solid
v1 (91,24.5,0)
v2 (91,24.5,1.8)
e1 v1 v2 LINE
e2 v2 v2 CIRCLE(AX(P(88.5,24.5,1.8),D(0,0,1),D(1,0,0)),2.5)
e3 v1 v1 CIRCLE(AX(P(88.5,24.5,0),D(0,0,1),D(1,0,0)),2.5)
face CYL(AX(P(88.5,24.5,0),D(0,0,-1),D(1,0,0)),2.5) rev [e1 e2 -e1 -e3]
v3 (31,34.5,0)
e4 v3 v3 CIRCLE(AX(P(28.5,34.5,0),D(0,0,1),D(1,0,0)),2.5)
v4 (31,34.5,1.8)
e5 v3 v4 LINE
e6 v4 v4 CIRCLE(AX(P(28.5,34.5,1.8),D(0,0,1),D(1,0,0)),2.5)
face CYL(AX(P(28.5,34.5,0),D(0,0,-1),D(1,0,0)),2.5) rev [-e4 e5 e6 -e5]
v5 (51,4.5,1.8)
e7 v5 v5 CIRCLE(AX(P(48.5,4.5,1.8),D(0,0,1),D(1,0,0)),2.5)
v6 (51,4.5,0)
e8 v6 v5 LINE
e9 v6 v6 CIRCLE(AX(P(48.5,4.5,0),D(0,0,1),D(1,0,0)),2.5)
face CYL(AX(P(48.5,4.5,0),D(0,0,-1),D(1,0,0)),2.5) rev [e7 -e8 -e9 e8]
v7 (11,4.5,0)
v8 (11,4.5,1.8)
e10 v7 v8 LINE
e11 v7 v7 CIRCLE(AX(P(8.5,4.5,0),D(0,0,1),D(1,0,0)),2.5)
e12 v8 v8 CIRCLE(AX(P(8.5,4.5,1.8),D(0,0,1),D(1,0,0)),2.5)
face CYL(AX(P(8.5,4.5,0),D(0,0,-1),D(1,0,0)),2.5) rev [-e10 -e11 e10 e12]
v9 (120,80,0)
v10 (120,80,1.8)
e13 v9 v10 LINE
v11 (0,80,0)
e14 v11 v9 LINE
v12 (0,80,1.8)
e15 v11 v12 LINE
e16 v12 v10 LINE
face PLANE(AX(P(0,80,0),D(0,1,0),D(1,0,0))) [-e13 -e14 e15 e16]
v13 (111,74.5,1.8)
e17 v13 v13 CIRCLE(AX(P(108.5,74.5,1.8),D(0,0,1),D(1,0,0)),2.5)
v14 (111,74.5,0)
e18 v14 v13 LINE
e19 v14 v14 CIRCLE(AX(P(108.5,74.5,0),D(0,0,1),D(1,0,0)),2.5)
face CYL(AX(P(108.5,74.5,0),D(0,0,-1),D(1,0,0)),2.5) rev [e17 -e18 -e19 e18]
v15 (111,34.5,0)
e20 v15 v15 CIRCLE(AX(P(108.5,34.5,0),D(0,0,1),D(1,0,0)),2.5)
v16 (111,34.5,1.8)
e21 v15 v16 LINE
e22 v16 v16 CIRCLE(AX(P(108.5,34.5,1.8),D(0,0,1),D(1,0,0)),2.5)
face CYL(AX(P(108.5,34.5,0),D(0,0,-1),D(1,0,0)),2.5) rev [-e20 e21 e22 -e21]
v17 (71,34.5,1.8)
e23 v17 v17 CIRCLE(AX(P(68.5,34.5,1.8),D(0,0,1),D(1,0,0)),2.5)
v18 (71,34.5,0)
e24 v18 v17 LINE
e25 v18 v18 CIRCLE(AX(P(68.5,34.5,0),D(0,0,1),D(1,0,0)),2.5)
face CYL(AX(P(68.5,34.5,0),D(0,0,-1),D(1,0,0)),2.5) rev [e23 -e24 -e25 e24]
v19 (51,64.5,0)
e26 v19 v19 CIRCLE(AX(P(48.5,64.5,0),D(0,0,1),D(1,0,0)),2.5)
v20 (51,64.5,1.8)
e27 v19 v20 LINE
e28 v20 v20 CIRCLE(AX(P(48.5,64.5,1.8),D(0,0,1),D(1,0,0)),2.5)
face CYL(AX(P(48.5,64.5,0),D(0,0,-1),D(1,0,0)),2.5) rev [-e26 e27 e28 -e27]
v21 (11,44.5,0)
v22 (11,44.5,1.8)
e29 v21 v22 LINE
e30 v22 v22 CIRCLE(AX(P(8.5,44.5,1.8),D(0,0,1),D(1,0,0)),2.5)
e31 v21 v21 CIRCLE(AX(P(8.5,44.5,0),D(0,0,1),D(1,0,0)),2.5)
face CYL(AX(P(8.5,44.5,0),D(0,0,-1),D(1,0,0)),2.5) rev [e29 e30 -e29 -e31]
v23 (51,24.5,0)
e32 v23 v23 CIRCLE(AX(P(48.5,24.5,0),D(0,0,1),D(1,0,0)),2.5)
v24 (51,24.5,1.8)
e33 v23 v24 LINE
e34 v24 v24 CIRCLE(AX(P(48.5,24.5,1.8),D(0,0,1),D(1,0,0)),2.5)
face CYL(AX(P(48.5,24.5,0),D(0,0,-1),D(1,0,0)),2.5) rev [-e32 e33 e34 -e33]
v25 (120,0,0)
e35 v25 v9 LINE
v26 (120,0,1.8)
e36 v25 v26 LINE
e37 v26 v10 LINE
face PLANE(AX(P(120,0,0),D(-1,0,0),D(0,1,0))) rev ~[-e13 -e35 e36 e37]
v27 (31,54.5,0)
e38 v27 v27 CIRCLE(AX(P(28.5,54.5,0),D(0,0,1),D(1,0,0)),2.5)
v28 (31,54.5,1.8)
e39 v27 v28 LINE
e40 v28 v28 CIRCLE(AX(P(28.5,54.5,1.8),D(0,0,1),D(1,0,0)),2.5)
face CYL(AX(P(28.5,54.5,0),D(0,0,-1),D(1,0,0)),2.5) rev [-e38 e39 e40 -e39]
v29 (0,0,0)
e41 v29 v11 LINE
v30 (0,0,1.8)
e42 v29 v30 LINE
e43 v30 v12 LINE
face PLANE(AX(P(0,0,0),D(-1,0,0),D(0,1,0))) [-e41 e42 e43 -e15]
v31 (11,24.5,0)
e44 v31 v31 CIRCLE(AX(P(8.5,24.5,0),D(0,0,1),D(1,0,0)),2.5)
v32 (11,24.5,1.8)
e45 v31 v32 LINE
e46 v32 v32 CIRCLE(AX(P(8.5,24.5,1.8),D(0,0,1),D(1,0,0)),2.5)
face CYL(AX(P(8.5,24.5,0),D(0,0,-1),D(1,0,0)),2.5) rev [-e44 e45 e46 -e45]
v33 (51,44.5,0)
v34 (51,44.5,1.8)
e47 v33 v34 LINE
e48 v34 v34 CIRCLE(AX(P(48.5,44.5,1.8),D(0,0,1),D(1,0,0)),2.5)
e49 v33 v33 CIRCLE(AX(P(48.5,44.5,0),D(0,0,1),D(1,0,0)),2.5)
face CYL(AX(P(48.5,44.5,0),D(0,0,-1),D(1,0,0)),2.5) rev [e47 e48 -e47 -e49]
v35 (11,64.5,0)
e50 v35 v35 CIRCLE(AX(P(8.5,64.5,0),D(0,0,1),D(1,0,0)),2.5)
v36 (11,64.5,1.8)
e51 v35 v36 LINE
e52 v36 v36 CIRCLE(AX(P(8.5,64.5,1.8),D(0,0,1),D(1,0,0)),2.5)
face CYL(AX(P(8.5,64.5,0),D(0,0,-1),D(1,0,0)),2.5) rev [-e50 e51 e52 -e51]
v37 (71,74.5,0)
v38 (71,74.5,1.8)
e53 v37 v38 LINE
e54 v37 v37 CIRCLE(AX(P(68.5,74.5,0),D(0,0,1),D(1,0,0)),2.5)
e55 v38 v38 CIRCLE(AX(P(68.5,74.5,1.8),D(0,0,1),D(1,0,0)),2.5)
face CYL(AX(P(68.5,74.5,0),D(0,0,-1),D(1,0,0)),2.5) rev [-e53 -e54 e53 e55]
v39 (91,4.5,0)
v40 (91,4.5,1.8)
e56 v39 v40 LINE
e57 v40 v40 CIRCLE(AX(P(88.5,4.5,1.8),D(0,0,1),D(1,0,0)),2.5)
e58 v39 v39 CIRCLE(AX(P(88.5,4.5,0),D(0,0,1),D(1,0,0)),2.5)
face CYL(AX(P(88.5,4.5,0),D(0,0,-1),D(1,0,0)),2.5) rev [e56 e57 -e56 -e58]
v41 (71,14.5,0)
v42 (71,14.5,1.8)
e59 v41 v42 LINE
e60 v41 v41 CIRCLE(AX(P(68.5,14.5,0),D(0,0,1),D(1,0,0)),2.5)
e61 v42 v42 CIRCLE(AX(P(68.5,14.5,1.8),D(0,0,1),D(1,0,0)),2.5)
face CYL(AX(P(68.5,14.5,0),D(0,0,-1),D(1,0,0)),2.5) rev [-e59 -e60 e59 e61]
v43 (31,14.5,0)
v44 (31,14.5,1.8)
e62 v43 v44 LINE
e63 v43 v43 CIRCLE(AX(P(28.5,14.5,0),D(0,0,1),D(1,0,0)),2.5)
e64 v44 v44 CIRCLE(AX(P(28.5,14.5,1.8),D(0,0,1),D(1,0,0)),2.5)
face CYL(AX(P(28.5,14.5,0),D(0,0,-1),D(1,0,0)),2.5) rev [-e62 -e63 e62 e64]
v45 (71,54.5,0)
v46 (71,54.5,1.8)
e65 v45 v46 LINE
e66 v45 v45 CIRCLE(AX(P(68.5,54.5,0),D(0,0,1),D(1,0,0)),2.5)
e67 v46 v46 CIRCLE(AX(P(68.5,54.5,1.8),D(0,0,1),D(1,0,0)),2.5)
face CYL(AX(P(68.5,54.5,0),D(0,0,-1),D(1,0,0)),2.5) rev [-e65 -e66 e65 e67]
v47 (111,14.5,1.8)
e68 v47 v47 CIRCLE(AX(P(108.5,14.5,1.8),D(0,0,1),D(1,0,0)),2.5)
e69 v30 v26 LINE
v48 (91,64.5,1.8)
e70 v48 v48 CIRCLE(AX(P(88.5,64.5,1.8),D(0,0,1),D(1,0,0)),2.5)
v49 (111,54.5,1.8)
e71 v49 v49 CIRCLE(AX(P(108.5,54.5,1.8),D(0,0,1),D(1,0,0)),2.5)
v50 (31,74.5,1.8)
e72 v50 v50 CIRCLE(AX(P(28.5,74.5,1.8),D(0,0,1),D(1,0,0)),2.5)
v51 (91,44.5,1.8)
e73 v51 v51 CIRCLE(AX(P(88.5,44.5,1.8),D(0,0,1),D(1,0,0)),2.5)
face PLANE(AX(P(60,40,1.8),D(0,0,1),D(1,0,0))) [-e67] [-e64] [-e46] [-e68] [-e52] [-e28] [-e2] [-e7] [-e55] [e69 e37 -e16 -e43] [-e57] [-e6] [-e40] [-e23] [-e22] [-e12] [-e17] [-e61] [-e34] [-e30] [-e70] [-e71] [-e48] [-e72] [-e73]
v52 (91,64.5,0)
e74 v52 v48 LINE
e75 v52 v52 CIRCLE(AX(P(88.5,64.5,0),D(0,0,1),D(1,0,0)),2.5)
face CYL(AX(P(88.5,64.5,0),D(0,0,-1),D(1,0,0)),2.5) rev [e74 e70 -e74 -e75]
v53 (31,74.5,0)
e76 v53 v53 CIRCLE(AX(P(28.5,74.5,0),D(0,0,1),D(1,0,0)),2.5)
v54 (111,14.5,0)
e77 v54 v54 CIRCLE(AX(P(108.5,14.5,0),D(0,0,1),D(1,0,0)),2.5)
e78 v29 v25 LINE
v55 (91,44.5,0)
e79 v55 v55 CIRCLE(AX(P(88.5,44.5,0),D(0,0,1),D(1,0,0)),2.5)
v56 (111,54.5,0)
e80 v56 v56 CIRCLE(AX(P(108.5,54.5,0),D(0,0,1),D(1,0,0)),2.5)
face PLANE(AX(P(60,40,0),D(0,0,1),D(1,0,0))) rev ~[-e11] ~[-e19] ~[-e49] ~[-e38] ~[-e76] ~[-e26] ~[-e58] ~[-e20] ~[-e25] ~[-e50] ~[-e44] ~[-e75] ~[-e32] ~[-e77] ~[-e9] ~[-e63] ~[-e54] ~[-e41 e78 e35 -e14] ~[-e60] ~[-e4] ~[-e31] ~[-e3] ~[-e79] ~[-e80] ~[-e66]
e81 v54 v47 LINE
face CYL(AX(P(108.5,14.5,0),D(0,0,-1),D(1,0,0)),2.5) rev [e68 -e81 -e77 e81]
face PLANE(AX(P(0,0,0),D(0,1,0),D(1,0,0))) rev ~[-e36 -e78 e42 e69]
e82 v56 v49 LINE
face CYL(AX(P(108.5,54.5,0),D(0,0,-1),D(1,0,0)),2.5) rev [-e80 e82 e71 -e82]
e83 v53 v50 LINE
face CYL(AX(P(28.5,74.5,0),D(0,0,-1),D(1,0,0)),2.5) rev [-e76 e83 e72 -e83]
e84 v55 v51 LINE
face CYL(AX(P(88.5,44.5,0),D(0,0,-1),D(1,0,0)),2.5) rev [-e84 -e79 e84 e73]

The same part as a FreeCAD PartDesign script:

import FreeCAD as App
import Part
import Sketcher
Q = App.Units.Quantity


def add_polygon(sketch, points):
    """Adds a closed chain of lines whose ends are joined by coincident constraints."""
    first, n = sketch.GeometryCount, len(points)
    for a, b in zip(points, points[1:] + points[:1]):
        sketch.addGeometry(Part.LineSegment(App.Vector(*a, 0), App.Vector(*b, 0)), False)
    for i in range(n):
        sketch.addConstraint(Sketcher.Constraint("Coincident", first + i, 2, first + (i + 1) % n, 1))

doc = App.newDocument("Part")
body = doc.addObject("PartDesign::Body", "Body")

# Sketch on XY plane
sketch1 = body.newObject("Sketcher::SketchObject", "Sketch")
sketch1.AttachmentSupport = (doc.getObject("XY_Plane"), [""])
sketch1.MapMode = "FlatFace"
add_polygon(sketch1, [(0, 80), (0, 0), (120, 0), (120, 80)])  # lines 0-3
sketch1.addGeometry(Part.Circle(App.Vector(8.5, 4.5, 0), App.Vector(0, 0, 1), 2.5), False)  # 4
sketch1.addGeometry(Part.Circle(App.Vector(28.5, 14.5, 0), App.Vector(0, 0, 1), 2.5), False)  # 5
sketch1.addGeometry(Part.Circle(App.Vector(48.5, 4.5, 0), App.Vector(0, 0, 1), 2.5), False)  # 6
sketch1.addGeometry(Part.Circle(App.Vector(8.5, 24.5, 0), App.Vector(0, 0, 1), 2.5), False)  # 7
sketch1.addGeometry(Part.Circle(App.Vector(28.5, 34.5, 0), App.Vector(0, 0, 1), 2.5), False)  # 8
sketch1.addGeometry(Part.Circle(App.Vector(48.5, 24.5, 0), App.Vector(0, 0, 1), 2.5), False)  # 9
sketch1.addGeometry(Part.Circle(App.Vector(68.5, 14.5, 0), App.Vector(0, 0, 1), 2.5), False)  # 10
sketch1.addGeometry(Part.Circle(App.Vector(88.5, 4.5, 0), App.Vector(0, 0, 1), 2.5), False)  # 11
sketch1.addGeometry(Part.Circle(App.Vector(108.5, 14.5, 0), App.Vector(0, 0, 1), 2.5), False)  # 12
sketch1.addGeometry(Part.Circle(App.Vector(68.5, 34.5, 0), App.Vector(0, 0, 1), 2.5), False)  # 13
sketch1.addGeometry(Part.Circle(App.Vector(88.5, 24.5, 0), App.Vector(0, 0, 1), 2.5), False)  # 14
sketch1.addGeometry(Part.Circle(App.Vector(108.5, 34.5, 0), App.Vector(0, 0, 1), 2.5), False)  # 15
sketch1.addGeometry(Part.Circle(App.Vector(8.5, 44.5, 0), App.Vector(0, 0, 1), 2.5), False)  # 16
sketch1.addGeometry(Part.Circle(App.Vector(28.5, 54.5, 0), App.Vector(0, 0, 1), 2.5), False)  # 17
sketch1.addGeometry(Part.Circle(App.Vector(48.5, 44.5, 0), App.Vector(0, 0, 1), 2.5), False)  # 18
sketch1.addGeometry(Part.Circle(App.Vector(8.5, 64.5, 0), App.Vector(0, 0, 1), 2.5), False)  # 19
sketch1.addGeometry(Part.Circle(App.Vector(28.5, 74.5, 0), App.Vector(0, 0, 1), 2.5), False)  # 20
sketch1.addGeometry(Part.Circle(App.Vector(48.5, 64.5, 0), App.Vector(0, 0, 1), 2.5), False)  # 21
sketch1.addGeometry(Part.Circle(App.Vector(68.5, 54.5, 0), App.Vector(0, 0, 1), 2.5), False)  # 22
sketch1.addGeometry(Part.Circle(App.Vector(88.5, 44.5, 0), App.Vector(0, 0, 1), 2.5), False)  # 23
sketch1.addGeometry(Part.Circle(App.Vector(108.5, 54.5, 0), App.Vector(0, 0, 1), 2.5), False)  # 24
sketch1.addGeometry(Part.Circle(App.Vector(68.5, 74.5, 0), App.Vector(0, 0, 1), 2.5), False)  # 25
sketch1.addGeometry(Part.Circle(App.Vector(88.5, 64.5, 0), App.Vector(0, 0, 1), 2.5), False)  # 26
sketch1.addGeometry(Part.Circle(App.Vector(108.5, 74.5, 0), App.Vector(0, 0, 1), 2.5), False)  # 27
sketch1.addConstraint(Sketcher.Constraint("Vertical", 0))
sketch1.addConstraint(Sketcher.Constraint("Horizontal", 1))
sketch1.addConstraint(Sketcher.Constraint("Vertical", 2))
sketch1.addConstraint(Sketcher.Constraint("Horizontal", 3))
sketch1.addConstraint(Sketcher.Constraint("Coincident", 0, 2, -1, 1))
sketch1.addConstraint(Sketcher.Constraint("Equal", 4, 5))
sketch1.addConstraint(Sketcher.Constraint("Equal", 5, 6))
sketch1.addConstraint(Sketcher.Constraint("Equal", 6, 7))
sketch1.addConstraint(Sketcher.Constraint("Equal", 7, 8))
sketch1.addConstraint(Sketcher.Constraint("Equal", 8, 9))
sketch1.addConstraint(Sketcher.Constraint("Equal", 9, 10))
sketch1.addConstraint(Sketcher.Constraint("Equal", 10, 11))
sketch1.addConstraint(Sketcher.Constraint("Equal", 11, 12))
sketch1.addConstraint(Sketcher.Constraint("Equal", 12, 13))
sketch1.addConstraint(Sketcher.Constraint("Equal", 13, 14))
sketch1.addConstraint(Sketcher.Constraint("Equal", 14, 15))
sketch1.addConstraint(Sketcher.Constraint("Equal", 15, 16))
sketch1.addConstraint(Sketcher.Constraint("Equal", 16, 17))
sketch1.addConstraint(Sketcher.Constraint("Equal", 17, 18))
sketch1.addConstraint(Sketcher.Constraint("Equal", 18, 19))
sketch1.addConstraint(Sketcher.Constraint("Equal", 19, 20))
sketch1.addConstraint(Sketcher.Constraint("Equal", 20, 21))
sketch1.addConstraint(Sketcher.Constraint("Equal", 21, 22))
sketch1.addConstraint(Sketcher.Constraint("Equal", 22, 23))
sketch1.addConstraint(Sketcher.Constraint("Equal", 23, 24))
sketch1.addConstraint(Sketcher.Constraint("Equal", 24, 25))
sketch1.addConstraint(Sketcher.Constraint("Equal", 25, 26))
sketch1.addConstraint(Sketcher.Constraint("Equal", 26, 27))
sketch1.addConstraint(Sketcher.Constraint("Horizontal", 4, 3, 6, 3))
sketch1.addConstraint(Sketcher.Constraint("Horizontal", 7, 3, 9, 3))
sketch1.addConstraint(Sketcher.Constraint("Horizontal", 5, 3, 10, 3))
sketch1.addConstraint(Sketcher.Constraint("Horizontal", 6, 3, 11, 3))
sketch1.addConstraint(Sketcher.Constraint("Horizontal", 10, 3, 12, 3))
sketch1.addConstraint(Sketcher.Constraint("Horizontal", 8, 3, 13, 3))
sketch1.addConstraint(Sketcher.Constraint("Horizontal", 9, 3, 14, 3))
sketch1.addConstraint(Sketcher.Constraint("Horizontal", 13, 3, 15, 3))
sketch1.addConstraint(Sketcher.Constraint("Horizontal", 16, 3, 18, 3))
sketch1.addConstraint(Sketcher.Constraint("Horizontal", 19, 3, 21, 3))
sketch1.addConstraint(Sketcher.Constraint("Horizontal", 17, 3, 22, 3))
sketch1.addConstraint(Sketcher.Constraint("Horizontal", 18, 3, 23, 3))
sketch1.addConstraint(Sketcher.Constraint("Horizontal", 22, 3, 24, 3))
sketch1.addConstraint(Sketcher.Constraint("Horizontal", 20, 3, 25, 3))
sketch1.addConstraint(Sketcher.Constraint("Horizontal", 21, 3, 26, 3))
sketch1.addConstraint(Sketcher.Constraint("Horizontal", 25, 3, 27, 3))
sketch1.addConstraint(Sketcher.Constraint("Vertical", 4, 3, 7, 3))
sketch1.addConstraint(Sketcher.Constraint("Vertical", 5, 3, 8, 3))
sketch1.addConstraint(Sketcher.Constraint("Vertical", 6, 3, 9, 3))
sketch1.addConstraint(Sketcher.Constraint("Vertical", 10, 3, 13, 3))
sketch1.addConstraint(Sketcher.Constraint("Vertical", 11, 3, 14, 3))
sketch1.addConstraint(Sketcher.Constraint("Vertical", 12, 3, 15, 3))
sketch1.addConstraint(Sketcher.Constraint("Vertical", 7, 3, 16, 3))
sketch1.addConstraint(Sketcher.Constraint("Vertical", 8, 3, 17, 3))
sketch1.addConstraint(Sketcher.Constraint("Vertical", 9, 3, 18, 3))
sketch1.addConstraint(Sketcher.Constraint("Vertical", 16, 3, 19, 3))
sketch1.addConstraint(Sketcher.Constraint("Vertical", 17, 3, 20, 3))
sketch1.addConstraint(Sketcher.Constraint("Vertical", 18, 3, 21, 3))
sketch1.addConstraint(Sketcher.Constraint("Vertical", 13, 3, 22, 3))
sketch1.addConstraint(Sketcher.Constraint("Vertical", 14, 3, 23, 3))
sketch1.addConstraint(Sketcher.Constraint("Vertical", 15, 3, 24, 3))
sketch1.addConstraint(Sketcher.Constraint("Vertical", 22, 3, 25, 3))
sketch1.addConstraint(Sketcher.Constraint("Vertical", 23, 3, 26, 3))
sketch1.addConstraint(Sketcher.Constraint("Vertical", 24, 3, 27, 3))
sketch1.addConstraint(Sketcher.Constraint("Diameter", 4, Q("5 mm")))
sketch1.addConstraint(Sketcher.Constraint("DistanceX", 1, 1, 1, 2, Q("120 mm")))
sketch1.addConstraint(Sketcher.Constraint("DistanceY", 0, 2, 0, 1, Q("80 mm")))
sketch1.addConstraint(Sketcher.Constraint("DistanceX", 4, 3, 5, 3, Q("20 mm")))
sketch1.addConstraint(Sketcher.Constraint("DistanceY", 4, 3, 5, 3, Q("10 mm")))
sketch1.addConstraint(Sketcher.Constraint("DistanceX", 5, 3, 6, 3, Q("20 mm")))
sketch1.addConstraint(Sketcher.Constraint("DistanceY", 4, 3, 7, 3, Q("20 mm")))
sketch1.addConstraint(Sketcher.Constraint("DistanceY", 5, 3, 8, 3, Q("20 mm")))
sketch1.addConstraint(Sketcher.Constraint("DistanceX", 6, 3, 10, 3, Q("20 mm")))
sketch1.addConstraint(Sketcher.Constraint("DistanceX", 10, 3, 11, 3, Q("20 mm")))
sketch1.addConstraint(Sketcher.Constraint("DistanceX", 11, 3, 12, 3, Q("20 mm")))
sketch1.addConstraint(Sketcher.Constraint("DistanceY", 7, 3, 16, 3, Q("20 mm")))
sketch1.addConstraint(Sketcher.Constraint("DistanceY", 8, 3, 17, 3, Q("20 mm")))
sketch1.addConstraint(Sketcher.Constraint("DistanceY", 16, 3, 19, 3, Q("20 mm")))
sketch1.addConstraint(Sketcher.Constraint("DistanceY", 17, 3, 20, 3, Q("20 mm")))
sketch1.addConstraint(Sketcher.Constraint("DistanceX", -1, 1, 4, 3, Q("8.5 mm")))
sketch1.addConstraint(Sketcher.Constraint("DistanceY", -1, 1, 4, 3, Q("4.5 mm")))
pad1 = body.newObject("PartDesign::Pad", "Pad")
pad1.Profile = sketch1
pad1.Length = 1.8

doc.recompute()
